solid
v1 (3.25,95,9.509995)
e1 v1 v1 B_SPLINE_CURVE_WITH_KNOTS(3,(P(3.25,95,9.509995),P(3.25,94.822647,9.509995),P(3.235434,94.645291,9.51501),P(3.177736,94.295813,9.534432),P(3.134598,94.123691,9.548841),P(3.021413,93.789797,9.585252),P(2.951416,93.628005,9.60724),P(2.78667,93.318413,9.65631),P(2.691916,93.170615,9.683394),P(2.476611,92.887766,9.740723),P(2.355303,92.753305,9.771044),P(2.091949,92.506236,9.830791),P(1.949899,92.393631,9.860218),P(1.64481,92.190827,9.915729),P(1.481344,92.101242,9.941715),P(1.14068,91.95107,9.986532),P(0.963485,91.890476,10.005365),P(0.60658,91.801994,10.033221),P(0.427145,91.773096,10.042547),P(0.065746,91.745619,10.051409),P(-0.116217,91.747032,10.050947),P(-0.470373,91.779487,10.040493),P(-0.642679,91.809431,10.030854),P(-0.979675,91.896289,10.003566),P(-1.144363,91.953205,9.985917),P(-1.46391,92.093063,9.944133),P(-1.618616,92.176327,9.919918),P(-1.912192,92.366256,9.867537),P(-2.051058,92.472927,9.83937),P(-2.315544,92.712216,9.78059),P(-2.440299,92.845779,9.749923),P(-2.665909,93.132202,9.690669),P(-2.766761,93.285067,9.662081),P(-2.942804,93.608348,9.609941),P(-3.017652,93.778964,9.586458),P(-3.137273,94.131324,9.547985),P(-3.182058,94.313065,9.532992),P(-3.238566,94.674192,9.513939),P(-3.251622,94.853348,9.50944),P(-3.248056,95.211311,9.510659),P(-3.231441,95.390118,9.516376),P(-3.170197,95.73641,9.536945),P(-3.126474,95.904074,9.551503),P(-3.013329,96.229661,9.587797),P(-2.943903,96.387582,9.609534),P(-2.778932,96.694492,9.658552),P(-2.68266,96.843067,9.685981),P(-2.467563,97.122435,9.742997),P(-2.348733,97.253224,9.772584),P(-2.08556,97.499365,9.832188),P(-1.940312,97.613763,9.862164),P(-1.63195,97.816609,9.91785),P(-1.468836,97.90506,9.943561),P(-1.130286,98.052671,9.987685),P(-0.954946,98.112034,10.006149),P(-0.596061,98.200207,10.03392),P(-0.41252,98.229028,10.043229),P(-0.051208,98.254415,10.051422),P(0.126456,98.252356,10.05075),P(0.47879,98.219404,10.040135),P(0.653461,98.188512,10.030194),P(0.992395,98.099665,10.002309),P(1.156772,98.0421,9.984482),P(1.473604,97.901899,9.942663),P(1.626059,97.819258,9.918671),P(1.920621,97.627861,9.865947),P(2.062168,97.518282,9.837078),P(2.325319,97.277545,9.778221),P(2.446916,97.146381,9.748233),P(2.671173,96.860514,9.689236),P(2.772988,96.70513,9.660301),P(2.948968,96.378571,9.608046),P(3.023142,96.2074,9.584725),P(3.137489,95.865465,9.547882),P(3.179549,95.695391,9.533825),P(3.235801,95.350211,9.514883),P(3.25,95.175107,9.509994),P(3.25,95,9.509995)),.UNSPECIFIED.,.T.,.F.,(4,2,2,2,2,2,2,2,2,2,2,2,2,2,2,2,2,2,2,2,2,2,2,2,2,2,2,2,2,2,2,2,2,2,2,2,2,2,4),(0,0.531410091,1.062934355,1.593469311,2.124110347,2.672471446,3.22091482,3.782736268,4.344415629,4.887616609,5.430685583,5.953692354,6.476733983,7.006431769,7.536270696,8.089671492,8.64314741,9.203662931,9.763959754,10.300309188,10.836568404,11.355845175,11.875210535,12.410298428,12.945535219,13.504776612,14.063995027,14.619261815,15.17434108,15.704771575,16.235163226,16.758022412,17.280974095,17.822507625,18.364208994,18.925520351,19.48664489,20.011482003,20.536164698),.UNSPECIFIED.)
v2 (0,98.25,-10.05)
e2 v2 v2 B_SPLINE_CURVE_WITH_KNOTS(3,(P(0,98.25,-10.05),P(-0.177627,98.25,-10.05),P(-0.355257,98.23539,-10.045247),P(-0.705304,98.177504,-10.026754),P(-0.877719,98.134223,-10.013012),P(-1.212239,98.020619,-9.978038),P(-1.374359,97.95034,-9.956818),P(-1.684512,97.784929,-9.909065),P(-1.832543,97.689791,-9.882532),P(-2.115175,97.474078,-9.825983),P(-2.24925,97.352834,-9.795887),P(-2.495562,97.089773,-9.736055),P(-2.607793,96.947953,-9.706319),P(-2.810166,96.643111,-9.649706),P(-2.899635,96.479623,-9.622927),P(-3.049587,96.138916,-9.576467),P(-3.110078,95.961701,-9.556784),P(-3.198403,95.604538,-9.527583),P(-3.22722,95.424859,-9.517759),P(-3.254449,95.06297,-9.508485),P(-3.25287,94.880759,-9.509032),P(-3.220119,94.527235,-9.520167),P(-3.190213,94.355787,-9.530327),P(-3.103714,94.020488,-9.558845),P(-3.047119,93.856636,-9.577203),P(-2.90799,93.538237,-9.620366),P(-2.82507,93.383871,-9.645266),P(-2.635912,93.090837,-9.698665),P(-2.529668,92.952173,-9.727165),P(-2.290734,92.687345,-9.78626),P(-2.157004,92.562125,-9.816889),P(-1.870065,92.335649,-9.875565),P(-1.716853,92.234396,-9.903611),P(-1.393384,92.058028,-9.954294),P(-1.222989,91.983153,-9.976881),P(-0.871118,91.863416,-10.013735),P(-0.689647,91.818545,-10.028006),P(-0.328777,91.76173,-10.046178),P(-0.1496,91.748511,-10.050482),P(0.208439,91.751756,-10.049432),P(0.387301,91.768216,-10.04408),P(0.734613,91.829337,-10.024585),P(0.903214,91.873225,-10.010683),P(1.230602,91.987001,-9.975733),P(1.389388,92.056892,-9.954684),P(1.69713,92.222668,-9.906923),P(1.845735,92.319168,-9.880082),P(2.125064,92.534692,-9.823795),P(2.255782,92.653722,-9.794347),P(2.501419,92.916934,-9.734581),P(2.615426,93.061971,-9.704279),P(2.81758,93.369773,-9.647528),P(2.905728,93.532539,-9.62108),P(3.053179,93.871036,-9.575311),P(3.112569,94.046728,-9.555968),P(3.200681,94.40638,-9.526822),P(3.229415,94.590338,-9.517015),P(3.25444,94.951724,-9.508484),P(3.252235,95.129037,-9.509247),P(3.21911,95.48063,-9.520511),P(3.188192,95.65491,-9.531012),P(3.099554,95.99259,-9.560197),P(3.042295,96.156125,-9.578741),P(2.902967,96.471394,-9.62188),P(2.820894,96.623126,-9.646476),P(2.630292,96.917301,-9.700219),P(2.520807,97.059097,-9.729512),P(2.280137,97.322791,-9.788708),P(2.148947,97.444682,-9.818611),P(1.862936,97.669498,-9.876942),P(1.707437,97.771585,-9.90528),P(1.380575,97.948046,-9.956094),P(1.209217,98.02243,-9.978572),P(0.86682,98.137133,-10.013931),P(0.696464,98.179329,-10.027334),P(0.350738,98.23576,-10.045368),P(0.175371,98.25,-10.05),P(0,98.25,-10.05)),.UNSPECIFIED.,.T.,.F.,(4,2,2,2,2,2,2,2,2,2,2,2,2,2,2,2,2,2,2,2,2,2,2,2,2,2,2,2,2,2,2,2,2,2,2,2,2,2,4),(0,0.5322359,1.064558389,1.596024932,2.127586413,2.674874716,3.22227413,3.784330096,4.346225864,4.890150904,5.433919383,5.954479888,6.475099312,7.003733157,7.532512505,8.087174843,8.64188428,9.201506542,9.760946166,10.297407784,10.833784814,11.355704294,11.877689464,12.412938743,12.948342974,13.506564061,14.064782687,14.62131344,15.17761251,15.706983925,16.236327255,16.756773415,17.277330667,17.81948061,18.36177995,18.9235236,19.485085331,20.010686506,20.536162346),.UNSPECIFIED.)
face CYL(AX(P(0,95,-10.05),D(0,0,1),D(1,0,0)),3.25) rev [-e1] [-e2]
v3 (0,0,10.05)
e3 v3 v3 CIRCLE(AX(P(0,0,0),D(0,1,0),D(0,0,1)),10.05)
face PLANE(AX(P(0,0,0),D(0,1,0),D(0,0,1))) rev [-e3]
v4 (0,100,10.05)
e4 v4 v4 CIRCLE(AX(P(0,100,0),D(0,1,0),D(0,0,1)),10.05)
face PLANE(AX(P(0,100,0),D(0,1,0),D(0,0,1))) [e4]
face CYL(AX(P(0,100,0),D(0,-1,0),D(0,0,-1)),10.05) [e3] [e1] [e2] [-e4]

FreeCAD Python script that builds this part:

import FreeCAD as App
import Part
import Sketcher
from FreeCAD import Vector
Q = App.Units.Quantity

doc = App.newDocument("Part")
body = doc.addObject("PartDesign::Body", "Body")

# Sketch on XZ plane
sketch1 = body.newObject("Sketcher::SketchObject", "Sketch")
sketch1.AttachmentSupport = (doc.getObject("XZ_Plane"), [""])
sketch1.MapMode = "FlatFace"
sketch1.addGeometry(Part.Circle(Vector(0, 0, 0), Vector(0, 0, 1), 10), False)
sketch1.addConstraint([
    Sketcher.Constraint("Coincident", 0, 3, -1, 1),
    Sketcher.Constraint("Diameter", 0, Q("20.1 mm")),
])
pad1 = body.newObject("PartDesign::Pad", "Pad")
pad1.Profile = sketch1
pad1.Length = 100
pad1.Reversed = True

# Sketch on XY plane
sketch2 = body.newObject("Sketcher::SketchObject", "Sketch001")
sketch2.AttachmentSupport = (doc.getObject("XY_Plane"), [""])
sketch2.MapMode = "FlatFace"
sketch2.addGeometry(Part.Circle(Vector(0, 95, 0), Vector(0, 0, 1), 3.2), False)
sketch2.addConstraint([
    Sketcher.Constraint("PointOnObject", 0, 3, -2),
    Sketcher.Constraint("Diameter", 0, Q("6.5 mm")),
    Sketcher.Constraint("DistanceY", -1, 1, 0, 3, Q("95 mm")),
])
pocket1 = body.newObject("PartDesign::Pocket", "Pocket")
pocket1.Profile = sketch2
pocket1.Type = "ThroughAll"
pocket1.Midplane = True

doc.recompute()
